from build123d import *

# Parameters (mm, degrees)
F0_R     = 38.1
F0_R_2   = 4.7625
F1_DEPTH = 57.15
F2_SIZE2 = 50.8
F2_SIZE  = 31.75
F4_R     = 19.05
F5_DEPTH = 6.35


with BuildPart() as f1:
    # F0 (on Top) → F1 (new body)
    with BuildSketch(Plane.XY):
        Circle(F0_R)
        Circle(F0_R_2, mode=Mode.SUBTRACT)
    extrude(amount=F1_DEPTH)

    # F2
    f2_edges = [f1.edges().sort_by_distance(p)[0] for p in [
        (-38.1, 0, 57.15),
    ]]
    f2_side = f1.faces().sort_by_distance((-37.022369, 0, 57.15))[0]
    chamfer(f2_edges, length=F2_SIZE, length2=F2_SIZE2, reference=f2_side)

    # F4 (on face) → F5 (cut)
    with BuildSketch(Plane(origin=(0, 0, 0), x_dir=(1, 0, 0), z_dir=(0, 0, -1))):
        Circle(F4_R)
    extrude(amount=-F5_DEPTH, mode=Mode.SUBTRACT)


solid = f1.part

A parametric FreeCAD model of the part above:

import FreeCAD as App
import Part
import Sketcher
from FreeCAD import Vector
Q = App.Units.Quantity


def edges_at(feature, points):
    """Names of the edges that pass closest to the given points."""
    edges = feature.Shape.Edges
    near = lambda p: min(range(len(edges)), key=lambda i: edges[i].distToShape(Part.Vertex(*p))[0])
    return sorted({f"Edge{near(p) + 1}" for p in points})

doc = App.newDocument("Part")
params = doc.addObject("Spreadsheet::Sheet", "Params")
for row, (alias, value) in enumerate([
    ("sketch1_diameter", "3 in"),
    ("sketch1_diameter2", "0.375 in"),
    ("pad1_length", "2.25 in"),
    ("chamfer_size", "1.25 in"),
    ("chamfer_size2", "2 in"),
    ("sketch2_diameter", "1.5 in"),
    ("pocket1_length", "0.25 in"),
], start=1):
    params.set(f"A{row}", alias)
    params.set(f"B{row}", "=" + value)
    params.setAlias(f"B{row}", alias)

body = doc.addObject("PartDesign::Body", "Body")

sketch1 = body.newObject("Sketcher::SketchObject", "Sketch")
sketch1.AttachmentSupport = (doc.getObject("XY_Plane"), [""])
sketch1.MapMode = "FlatFace"
sketch1.addGeometry([
    Part.Circle(Vector(0, 0, 0), Vector(0, 0, 1), 38.1),
    Part.Circle(Vector(0, 0, 0), Vector(0, 0, 1), 4.8),
], False)
sketch1.addConstraint([
    Sketcher.Constraint("Coincident", 0, 3, -1, 1),
    Sketcher.Constraint("Coincident", 1, 3, -1, 1),
    Sketcher.Constraint("Diameter", 0, Q("3 in")),
    Sketcher.Constraint("Diameter", 1, Q("0.375 in")),
])
sketch1.setExpression("Constraints[2]", "Params.sketch1_diameter")
sketch1.setExpression("Constraints[3]", "Params.sketch1_diameter2")
pad1 = body.newObject("PartDesign::Pad", "Pad")
pad1.Profile = sketch1
pad1.setExpression("Length", "Params.pad1_length")
doc.recompute()

chamfer = body.newObject("PartDesign::Chamfer", "Chamfer")
chamfer.Base = (pad1, edges_at(pad1, [(-38.1, 0, 57.15)]))
chamfer.ChamferType = "Two distances"
chamfer.setExpression("Size", "Params.chamfer_size")
chamfer.setExpression("Size2", "Params.chamfer_size2")
chamfer.FlipDirection = True

sketch2 = body.newObject("Sketcher::SketchObject", "Sketch001")
sketch2.AttachmentSupport = (doc.getObject("XY_Plane"), [""])
sketch2.MapMode = "FlatFace"
sketch2.addGeometry(Part.Circle(Vector(0, 0, 0), Vector(0, 0, 1), 19), False)
sketch2.addConstraint([
    Sketcher.Constraint("Coincident", 0, 3, -1, 1),
    Sketcher.Constraint("Diameter", 0, Q("1.5 in")),
])
sketch2.setExpression("Constraints[1]", "Params.sketch2_diameter")
pocket1 = body.newObject("PartDesign::Pocket", "Pocket")
pocket1.Profile = sketch2
pocket1.setExpression("Length", "Params.pocket1_length")
pocket1.Reversed = True

doc.recompute()
